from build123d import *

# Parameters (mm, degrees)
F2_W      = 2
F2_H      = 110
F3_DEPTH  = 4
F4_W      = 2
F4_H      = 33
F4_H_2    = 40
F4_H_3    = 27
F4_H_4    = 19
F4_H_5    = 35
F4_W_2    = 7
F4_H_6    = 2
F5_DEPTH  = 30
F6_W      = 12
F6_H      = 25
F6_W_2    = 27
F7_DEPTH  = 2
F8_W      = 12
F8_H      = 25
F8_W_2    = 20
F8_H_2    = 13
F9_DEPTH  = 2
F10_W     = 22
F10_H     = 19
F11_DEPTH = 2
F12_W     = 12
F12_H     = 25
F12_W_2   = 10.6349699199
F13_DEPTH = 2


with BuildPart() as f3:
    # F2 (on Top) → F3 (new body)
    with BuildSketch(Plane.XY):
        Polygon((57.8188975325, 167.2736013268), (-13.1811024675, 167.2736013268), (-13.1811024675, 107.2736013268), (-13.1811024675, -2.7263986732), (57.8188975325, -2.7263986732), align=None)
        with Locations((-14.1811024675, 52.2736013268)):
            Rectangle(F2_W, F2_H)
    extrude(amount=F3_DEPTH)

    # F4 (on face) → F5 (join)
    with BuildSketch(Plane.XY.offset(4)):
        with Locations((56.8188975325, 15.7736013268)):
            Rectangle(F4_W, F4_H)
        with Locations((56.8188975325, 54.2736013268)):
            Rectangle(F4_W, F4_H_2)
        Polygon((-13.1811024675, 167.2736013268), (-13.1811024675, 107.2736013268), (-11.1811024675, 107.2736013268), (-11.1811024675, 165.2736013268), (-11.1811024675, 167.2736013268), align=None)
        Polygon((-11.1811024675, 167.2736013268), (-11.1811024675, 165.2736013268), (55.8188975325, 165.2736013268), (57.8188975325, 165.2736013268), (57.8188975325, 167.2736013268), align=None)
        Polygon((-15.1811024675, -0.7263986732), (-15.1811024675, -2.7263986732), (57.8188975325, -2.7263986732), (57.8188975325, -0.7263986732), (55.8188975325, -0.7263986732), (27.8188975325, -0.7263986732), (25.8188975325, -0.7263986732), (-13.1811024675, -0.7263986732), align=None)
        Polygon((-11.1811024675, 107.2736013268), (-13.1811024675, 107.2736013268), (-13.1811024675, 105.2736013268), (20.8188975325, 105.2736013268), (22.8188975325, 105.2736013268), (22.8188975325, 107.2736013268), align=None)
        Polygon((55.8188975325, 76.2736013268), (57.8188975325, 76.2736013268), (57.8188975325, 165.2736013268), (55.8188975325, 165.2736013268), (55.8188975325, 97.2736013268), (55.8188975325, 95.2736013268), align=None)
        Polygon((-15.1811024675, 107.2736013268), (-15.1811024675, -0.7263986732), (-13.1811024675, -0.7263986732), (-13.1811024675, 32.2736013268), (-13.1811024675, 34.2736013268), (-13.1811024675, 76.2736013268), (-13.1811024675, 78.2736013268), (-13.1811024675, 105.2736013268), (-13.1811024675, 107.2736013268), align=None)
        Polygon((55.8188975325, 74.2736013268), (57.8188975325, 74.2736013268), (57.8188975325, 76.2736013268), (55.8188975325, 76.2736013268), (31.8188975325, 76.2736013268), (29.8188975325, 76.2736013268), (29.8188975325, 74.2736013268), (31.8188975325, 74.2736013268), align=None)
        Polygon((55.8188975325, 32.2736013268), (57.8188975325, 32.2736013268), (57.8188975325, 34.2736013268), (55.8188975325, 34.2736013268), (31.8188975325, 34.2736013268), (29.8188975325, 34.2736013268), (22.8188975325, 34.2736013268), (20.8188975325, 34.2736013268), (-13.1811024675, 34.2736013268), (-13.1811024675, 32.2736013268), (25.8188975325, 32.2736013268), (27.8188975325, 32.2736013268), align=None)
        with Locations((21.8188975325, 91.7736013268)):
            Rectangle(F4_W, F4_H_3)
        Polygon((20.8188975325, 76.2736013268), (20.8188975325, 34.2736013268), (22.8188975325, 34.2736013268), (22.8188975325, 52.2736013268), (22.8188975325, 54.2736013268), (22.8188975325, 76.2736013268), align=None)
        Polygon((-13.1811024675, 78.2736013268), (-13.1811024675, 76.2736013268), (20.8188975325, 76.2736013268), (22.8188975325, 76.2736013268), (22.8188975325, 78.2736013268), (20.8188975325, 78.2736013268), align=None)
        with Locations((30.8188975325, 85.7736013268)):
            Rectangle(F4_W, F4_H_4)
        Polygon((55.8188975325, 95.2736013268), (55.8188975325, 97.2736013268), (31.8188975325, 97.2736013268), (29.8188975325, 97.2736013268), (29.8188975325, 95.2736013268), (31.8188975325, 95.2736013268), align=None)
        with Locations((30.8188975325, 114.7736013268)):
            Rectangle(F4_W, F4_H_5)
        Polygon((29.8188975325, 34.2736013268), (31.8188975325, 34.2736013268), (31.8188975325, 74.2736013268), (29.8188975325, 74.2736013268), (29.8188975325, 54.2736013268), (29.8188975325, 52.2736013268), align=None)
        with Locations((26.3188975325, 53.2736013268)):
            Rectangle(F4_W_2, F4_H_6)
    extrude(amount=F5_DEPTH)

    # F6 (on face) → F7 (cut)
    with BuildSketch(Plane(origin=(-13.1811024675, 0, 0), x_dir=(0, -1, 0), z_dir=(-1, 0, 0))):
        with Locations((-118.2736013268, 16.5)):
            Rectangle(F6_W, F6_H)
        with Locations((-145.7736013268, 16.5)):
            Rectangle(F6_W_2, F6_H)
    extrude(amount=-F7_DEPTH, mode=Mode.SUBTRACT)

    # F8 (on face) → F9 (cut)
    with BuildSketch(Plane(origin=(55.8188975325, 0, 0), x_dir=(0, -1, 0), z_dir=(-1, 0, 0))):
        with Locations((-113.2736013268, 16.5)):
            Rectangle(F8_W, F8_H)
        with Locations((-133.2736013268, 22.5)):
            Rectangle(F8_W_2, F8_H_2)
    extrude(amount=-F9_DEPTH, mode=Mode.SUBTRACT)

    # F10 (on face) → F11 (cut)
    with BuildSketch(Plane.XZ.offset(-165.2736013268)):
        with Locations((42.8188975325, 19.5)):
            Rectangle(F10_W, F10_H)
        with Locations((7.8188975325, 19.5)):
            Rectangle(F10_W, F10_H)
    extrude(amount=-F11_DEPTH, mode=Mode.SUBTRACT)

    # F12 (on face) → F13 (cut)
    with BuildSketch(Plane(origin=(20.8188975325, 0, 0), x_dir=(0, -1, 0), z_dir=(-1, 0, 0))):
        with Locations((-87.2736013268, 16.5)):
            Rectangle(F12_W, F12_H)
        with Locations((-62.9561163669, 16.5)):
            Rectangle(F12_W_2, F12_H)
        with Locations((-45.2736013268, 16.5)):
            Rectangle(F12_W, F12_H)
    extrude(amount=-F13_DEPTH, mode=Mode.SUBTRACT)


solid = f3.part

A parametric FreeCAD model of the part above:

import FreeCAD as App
import Part
import Sketcher

V = App.Vector

doc = App.newDocument("Part")
body = doc.addObject("PartDesign::Body", "Body")

sketch1 = body.newObject("Sketcher::SketchObject", "Sketch")
sketch1.AttachmentSupport = (doc.getObject("XY_Plane"), [""])
sketch1.MapMode = "FlatFace"
sketch1.addGeometry([
    Part.LineSegment(V(57.8, 167.3, 0), V(-13.2, 167.3, 0)),
    Part.LineSegment(V(-13.2, 167.3, 0), V(-13.2, 107.3, 0)),
    Part.LineSegment(V(-13.2, 107.3, 0), V(-15.2, 107.3, 0)),
    Part.LineSegment(V(-15.2, 107.3, 0), V(-15.2, -2.7, 0)),
    Part.LineSegment(V(-15.2, -2.7, 0), V(57.8, -2.7, 0)),
    Part.LineSegment(V(57.8, -2.7, 0), V(57.8, 167.3, 0)),
], False)
sketch1.addConstraint([
    Sketcher.Constraint("Coincident", 0, 2, 1, 1),
    Sketcher.Constraint("Coincident", 1, 2, 2, 1),
    Sketcher.Constraint("Coincident", 2, 2, 3, 1),
    Sketcher.Constraint("Coincident", 3, 2, 4, 1),
    Sketcher.Constraint("Coincident", 4, 2, 5, 1),
    Sketcher.Constraint("Coincident", 5, 2, 0, 1),
    Sketcher.Constraint("Horizontal", 0),
    Sketcher.Constraint("Vertical", 1),
    Sketcher.Constraint("Horizontal", 2),
    Sketcher.Constraint("Vertical", 3),
    Sketcher.Constraint("Horizontal", 4),
    Sketcher.Constraint("Vertical", 5),
    Sketcher.Constraint("DistanceX", 0, 2, 0, 1, 71.0),
    Sketcher.Constraint("DistanceX", 2, 2, 2, 1, 2.0),
    Sketcher.Constraint("DistanceY", 1, 2, 1, 1, 60.0),
    Sketcher.Constraint("DistanceY", 3, 2, 3, 1, 110.0),
    Sketcher.Constraint("DistanceY", -1, 1, 0, 2, 167.273601),
    Sketcher.Constraint("DistanceX", 0, 2, -1, 1, 13.181102),
])
pad1 = body.newObject("PartDesign::Pad", "Pad")
pad1.Profile = sketch1
pad1.Length = 4

sketch2 = body.newObject("Sketcher::SketchObject", "Sketch001")
sketch2.AttachmentSupport = (doc.getObject("XY_Plane"), [""])
sketch2.MapMode = "FlatFace"
sketch2.AttachmentOffset = App.Placement(V(0, 0, 4), App.Rotation())
sketch2.addGeometry([
    Part.LineSegment(V(57.8, 167.3, 0), V(-13.2, 167.3, 0)),
    Part.LineSegment(V(-13.2, 167.3, 0), V(-13.2, 107.3, 0)),
    Part.LineSegment(V(-13.2, 107.3, 0), V(-15.2, 107.3, 0)),
    Part.LineSegment(V(-15.2, 107.3, 0), V(-15.2, -2.7, 0)),
    Part.LineSegment(V(-15.2, -2.7, 0), V(57.8, -2.7, 0)),
    Part.LineSegment(V(57.8, -2.7, 0), V(57.8, 167.3, 0)),
    Part.LineSegment(V(55.8, 32.3, 0), V(55.8, -0.7, 0)),
    Part.LineSegment(V(55.8, -0.7, 0), V(-13.2, -0.7, 0)),
    Part.LineSegment(V(-13.2, -0.7, 0), V(-13.2, 32.3, 0)),
    Part.LineSegment(V(-13.2, 32.3, 0), V(55.8, 32.3, 0)),
    Part.LineSegment(V(-13.2, 34.3, 0), V(-13.2, 76.3, 0)),
    Part.LineSegment(V(-13.2, 76.3, 0), V(20.8, 76.3, 0)),
    Part.LineSegment(V(20.8, 76.3, 0), V(20.8, 34.3, 0)),
    Part.LineSegment(V(20.8, 34.3, 0), V(-13.2, 34.3, 0)),
    Part.LineSegment(V(-13.2, 78.3, 0), V(-13.2, 105.3, 0)),
    Part.LineSegment(V(-13.2, 105.3, 0), V(20.8, 105.3, 0)),
    Part.LineSegment(V(20.8, 105.3, 0), V(20.8, 78.3, 0)),
    Part.LineSegment(V(20.8, 78.3, 0), V(-13.2, 78.3, 0)),
    Part.LineSegment(V(22.8, 107.3, 0), V(-11.2, 107.3, 0)),
    Part.LineSegment(V(-11.2, 107.3, 0), V(-11.2, 165.3, 0)),
    Part.LineSegment(V(-11.2, 165.3, 0), V(55.8, 165.3, 0)),
    Part.LineSegment(V(55.8, 165.3, 0), V(55.8, 97.3, 0)),
    Part.LineSegment(V(55.8, 97.3, 0), V(31.8, 97.3, 0)),
    Part.LineSegment(V(31.8, 97.3, 0), V(31.8, 132.3, 0)),
    Part.LineSegment(V(31.8, 132.3, 0), V(29.8, 132.3, 0)),
    Part.LineSegment(V(29.8, 132.3, 0), V(29.8, 54.3, 0)),
    Part.LineSegment(V(29.8, 54.3, 0), V(22.8, 54.3, 0)),
    Part.LineSegment(V(22.8, 54.3, 0), V(22.8, 107.3, 0)),
    Part.LineSegment(V(29.8, 52.3, 0), V(29.8, 34.3, 0)),
    Part.LineSegment(V(29.8, 34.3, 0), V(22.8, 34.3, 0)),
    Part.LineSegment(V(22.8, 34.3, 0), V(22.8, 52.3, 0)),
    Part.LineSegment(V(22.8, 52.3, 0), V(29.8, 52.3, 0)),
    Part.LineSegment(V(31.8, 74.3, 0), V(55.8, 74.3, 0)),
    Part.LineSegment(V(55.8, 74.3, 0), V(55.8, 34.3, 0)),
    Part.LineSegment(V(55.8, 34.3, 0), V(31.8, 34.3, 0)),
    Part.LineSegment(V(31.8, 34.3, 0), V(31.8, 74.3, 0)),
    Part.LineSegment(V(55.8, 95.3, 0), V(55.8, 76.3, 0)),
    Part.LineSegment(V(55.8, 76.3, 0), V(31.8, 76.3, 0)),
    Part.LineSegment(V(31.8, 76.3, 0), V(31.8, 95.3, 0)),
    Part.LineSegment(V(31.8, 95.3, 0), V(55.8, 95.3, 0)),
], False)
sketch2.addConstraint([
    Sketcher.Constraint("Coincident", 0, 2, 1, 1),
    Sketcher.Constraint("Coincident", 1, 2, 2, 1),
    Sketcher.Constraint("Coincident", 2, 2, 3, 1),
    Sketcher.Constraint("Coincident", 3, 2, 4, 1),
    Sketcher.Constraint("Coincident", 4, 2, 5, 1),
    Sketcher.Constraint("Coincident", 5, 2, 0, 1),
    Sketcher.Constraint("Coincident", 6, 2, 7, 1),
    Sketcher.Constraint("Coincident", 7, 2, 8, 1),
    Sketcher.Constraint("Coincident", 8, 2, 9, 1),
    Sketcher.Constraint("Coincident", 9, 2, 6, 1),
    Sketcher.Constraint("Coincident", 10, 2, 11, 1),
    Sketcher.Constraint("Coincident", 11, 2, 12, 1),
    Sketcher.Constraint("Coincident", 12, 2, 13, 1),
    Sketcher.Constraint("Coincident", 13, 2, 10, 1),
    Sketcher.Constraint("Coincident", 14, 2, 15, 1),
    Sketcher.Constraint("Coincident", 15, 2, 16, 1),
    Sketcher.Constraint("Coincident", 16, 2, 17, 1),
    Sketcher.Constraint("Coincident", 17, 2, 14, 1),
    Sketcher.Constraint("Coincident", 18, 2, 19, 1),
    Sketcher.Constraint("Coincident", 19, 2, 20, 1),
    Sketcher.Constraint("Coincident", 20, 2, 21, 1),
    Sketcher.Constraint("Coincident", 21, 2, 22, 1),
    Sketcher.Constraint("Coincident", 22, 2, 23, 1),
    Sketcher.Constraint("Coincident", 23, 2, 24, 1),
    Sketcher.Constraint("Coincident", 24, 2, 25, 1),
    Sketcher.Constraint("Coincident", 25, 2, 26, 1),
    Sketcher.Constraint("Coincident", 26, 2, 27, 1),
    Sketcher.Constraint("Coincident", 27, 2, 18, 1),
    Sketcher.Constraint("Coincident", 28, 2, 29, 1),
    Sketcher.Constraint("Coincident", 29, 2, 30, 1),
    Sketcher.Constraint("Coincident", 30, 2, 31, 1),
    Sketcher.Constraint("Coincident", 31, 2, 28, 1),
    Sketcher.Constraint("Coincident", 32, 2, 33, 1),
    Sketcher.Constraint("Coincident", 33, 2, 34, 1),
    Sketcher.Constraint("Coincident", 34, 2, 35, 1),
    Sketcher.Constraint("Coincident", 35, 2, 32, 1),
    Sketcher.Constraint("Coincident", 36, 2, 37, 1),
    Sketcher.Constraint("Coincident", 37, 2, 38, 1),
    Sketcher.Constraint("Coincident", 38, 2, 39, 1),
    Sketcher.Constraint("Coincident", 39, 2, 36, 1),
    Sketcher.Constraint("Horizontal", 0),
    Sketcher.Constraint("Vertical", 1),
    Sketcher.Constraint("Horizontal", 2),
    Sketcher.Constraint("Vertical", 3),
    Sketcher.Constraint("Horizontal", 4),
    Sketcher.Constraint("Vertical", 5),
    Sketcher.Constraint("Vertical", 6),
    Sketcher.Constraint("Horizontal", 7),
    Sketcher.Constraint("Vertical", 8),
    Sketcher.Constraint("Horizontal", 9),
    Sketcher.Constraint("Vertical", 10),
    Sketcher.Constraint("Horizontal", 11),
    Sketcher.Constraint("Vertical", 12),
    Sketcher.Constraint("Horizontal", 13),
    Sketcher.Constraint("Vertical", 14),
    Sketcher.Constraint("Horizontal", 15),
    Sketcher.Constraint("Vertical", 16),
    Sketcher.Constraint("Horizontal", 17),
    Sketcher.Constraint("Horizontal", 18),
    Sketcher.Constraint("Vertical", 19),
    Sketcher.Constraint("Horizontal", 20),
    Sketcher.Constraint("Vertical", 21),
    Sketcher.Constraint("Horizontal", 22),
    Sketcher.Constraint("Vertical", 23),
    Sketcher.Constraint("Horizontal", 24),
    Sketcher.Constraint("Vertical", 25),
    Sketcher.Constraint("Horizontal", 26),
    Sketcher.Constraint("Vertical", 27),
    Sketcher.Constraint("Vertical", 28),
    Sketcher.Constraint("Horizontal", 29),
    Sketcher.Constraint("Vertical", 30),
    Sketcher.Constraint("Horizontal", 31),
    Sketcher.Constraint("Horizontal", 32),
    Sketcher.Constraint("Vertical", 33),
    Sketcher.Constraint("Horizontal", 34),
    Sketcher.Constraint("Vertical", 35),
    Sketcher.Constraint("Vertical", 36),
    Sketcher.Constraint("Horizontal", 37),
    Sketcher.Constraint("Vertical", 38),
    Sketcher.Constraint("Horizontal", 39),
    Sketcher.Constraint("Horizontal", 2, 2, 18, 2),
    Sketcher.Constraint("Horizontal", 13, 2, 28, 2),
    Sketcher.Constraint("Horizontal", 29, 2, 33, 2),
    Sketcher.Constraint("Horizontal", 11, 2, 36, 2),
    Sketcher.Constraint("Vertical", 1, 2, 7, 2),
    Sketcher.Constraint("Vertical", 8, 2, 10, 2),
    Sketcher.Constraint("Vertical", 13, 2, 14, 2),
    Sketcher.Constraint("Vertical", 12, 2, 15, 2),
    Sketcher.Constraint("Vertical", 9, 2, 20, 2),
    Sketcher.Constraint("Vertical", 25, 2, 28, 2),
    Sketcher.Constraint("Vertical", 27, 2, 29, 2),
    Sketcher.Constraint("Vertical", 21, 2, 32, 2),
    Sketcher.Constraint("Vertical", 23, 2, 34, 2),
    Sketcher.Constraint("Vertical", 33, 2, 36, 2),
    Sketcher.Constraint("Vertical", 35, 2, 37, 2),
    Sketcher.Constraint("Equal", 17, 18),
    Sketcher.Constraint("Equal", 2, 24),
    Sketcher.Constraint("DistanceX", 0, 2, 0, 1, 71.0),
    Sketcher.Constraint("DistanceX", 2, 2, 2, 1, 2.0),
    Sketcher.Constraint("DistanceX", 7, 2, 7, 1, 69.0),
    Sketcher.Constraint("DistanceX", 11, 1, 11, 2, 34.0),
    Sketcher.Constraint("DistanceX", 20, 1, 20, 2, 67.0),
    Sketcher.Constraint("DistanceX", 22, 2, 22, 1, 24.0),
    Sketcher.Constraint("DistanceY", 1, 2, 1, 1, 60.0),
    Sketcher.Constraint("DistanceY", 3, 2, 3, 1, 110.0),
    Sketcher.Constraint("DistanceY", 6, 2, 6, 1, 33.0),
    Sketcher.Constraint("DistanceY", 10, 1, 10, 2, 42.0),
    Sketcher.Constraint("DistanceY", 14, 1, 14, 2, 27.0),
    Sketcher.Constraint("DistanceY", 19, 1, 19, 2, 58.0),
    Sketcher.Constraint("DistanceY", 21, 2, 21, 1, 68.0),
    Sketcher.Constraint("DistanceY", 23, 1, 23, 2, 35.0),
    Sketcher.Constraint("DistanceY", 25, 2, 25, 1, 78.0),
    Sketcher.Constraint("DistanceY", 28, 2, 28, 1, 18.0),
    Sketcher.Constraint("DistanceY", 33, 2, 33, 1, 40.0),
    Sketcher.Constraint("DistanceY", 36, 2, 36, 1, 19.0),
    Sketcher.Constraint("DistanceY", 4, 2, 6, 2, 2.0),
    Sketcher.Constraint("DistanceY", 10, 2, 1, 2, 31.0),
    Sketcher.Constraint("DistanceY", 14, 2, 1, 2, 2.0),
    Sketcher.Constraint("DistanceY", -1, 1, 0, 2, 167.273601),
    Sketcher.Constraint("DistanceX", 0, 2, -1, 1, 13.181102),
])
pad2 = body.newObject("PartDesign::Pad", "Pad001")
pad2.Profile = sketch2
pad2.Length = 30

sketch3 = body.newObject("Sketcher::SketchObject", "Sketch002")
sketch3.AttachmentSupport = (doc.getObject("YZ_Plane"), [""])
sketch3.MapMode = "FlatFace"
sketch3.AttachmentOffset = App.Placement(V(0, 0, -13.181102), App.Rotation())
sketch3.addGeometry([
    Part.LineSegment(V(124, 29, 0), V(124, 4, 0)),
    Part.LineSegment(V(124, 4, 0), V(112, 4, 0)),
    Part.LineSegment(V(112, 4, 0), V(112, 29, 0)),
    Part.LineSegment(V(112, 29, 0), V(124, 29, 0)),
    Part.LineSegment(V(159, 29, 0), V(159, 4, 0)),
    Part.LineSegment(V(159, 4, 0), V(132, 4, 0)),
    Part.LineSegment(V(132, 4, 0), V(132, 29, 0)),
    Part.LineSegment(V(132, 29, 0), V(159, 29, 0)),
], False)
sketch3.addConstraint([
    Sketcher.Constraint("Coincident", 0, 2, 1, 1),
    Sketcher.Constraint("Coincident", 1, 2, 2, 1),
    Sketcher.Constraint("Coincident", 2, 2, 3, 1),
    Sketcher.Constraint("Coincident", 3, 2, 0, 1),
    Sketcher.Constraint("Coincident", 4, 2, 5, 1),
    Sketcher.Constraint("Coincident", 5, 2, 6, 1),
    Sketcher.Constraint("Coincident", 6, 2, 7, 1),
    Sketcher.Constraint("Coincident", 7, 2, 4, 1),
    Sketcher.Constraint("Vertical", 0),
    Sketcher.Constraint("Horizontal", 1),
    Sketcher.Constraint("Vertical", 2),
    Sketcher.Constraint("Horizontal", 3),
    Sketcher.Constraint("Vertical", 4),
    Sketcher.Constraint("Horizontal", 5),
    Sketcher.Constraint("Vertical", 6),
    Sketcher.Constraint("Horizontal", 7),
    Sketcher.Constraint("Horizontal", 1, 2, 4, 2),
    Sketcher.Constraint("Horizontal", 3, 2, 6, 2),
    Sketcher.Constraint("DistanceX", 1, 2, 1, 1, 12.0),
    Sketcher.Constraint("DistanceX", 5, 2, 5, 1, 27.0),
    Sketcher.Constraint("DistanceY", 0, 2, 0, 1, 25.0),
    Sketcher.Constraint("DistanceY", -1, 1, 0, 2, 4.0),
    Sketcher.Constraint("DistanceX", 0, 2, 4, 2, 35.0),
    Sketcher.Constraint("DistanceX", -1, 1, 0, 2, 124.273601),
])
pocket1 = body.newObject("PartDesign::Pocket", "Pocket")
pocket1.Profile = sketch3
pocket1.Length = 2
pocket1.Reversed = True

sketch4 = body.newObject("Sketcher::SketchObject", "Sketch003")
sketch4.AttachmentSupport = (doc.getObject("YZ_Plane"), [""])
sketch4.MapMode = "FlatFace"
sketch4.AttachmentOffset = App.Placement(V(0, 0, 55.818898), App.Rotation())
sketch4.addGeometry([
    Part.LineSegment(V(119, 29, 0), V(119, 4, 0)),
    Part.LineSegment(V(119, 4, 0), V(107, 4, 0)),
    Part.LineSegment(V(107, 4, 0), V(107, 29, 0)),
    Part.LineSegment(V(107, 29, 0), V(119, 29, 0)),
    Part.LineSegment(V(143, 29, 0), V(143, 16, 0)),
    Part.LineSegment(V(143, 16, 0), V(123, 16, 0)),
    Part.LineSegment(V(123, 16, 0), V(123, 29, 0)),
    Part.LineSegment(V(123, 29, 0), V(143, 29, 0)),
], False)
sketch4.addConstraint([
    Sketcher.Constraint("Coincident", 0, 2, 1, 1),
    Sketcher.Constraint("Coincident", 1, 2, 2, 1),
    Sketcher.Constraint("Coincident", 2, 2, 3, 1),
    Sketcher.Constraint("Coincident", 3, 2, 0, 1),
    Sketcher.Constraint("Coincident", 4, 2, 5, 1),
    Sketcher.Constraint("Coincident", 5, 2, 6, 1),
    Sketcher.Constraint("Coincident", 6, 2, 7, 1),
    Sketcher.Constraint("Coincident", 7, 2, 4, 1),
    Sketcher.Constraint("Vertical", 0),
    Sketcher.Constraint("Horizontal", 1),
    Sketcher.Constraint("Vertical", 2),
    Sketcher.Constraint("Horizontal", 3),
    Sketcher.Constraint("Vertical", 4),
    Sketcher.Constraint("Horizontal", 5),
    Sketcher.Constraint("Vertical", 6),
    Sketcher.Constraint("Horizontal", 7),
    Sketcher.Constraint("Horizontal", 3, 2, 6, 2),
    Sketcher.Constraint("DistanceX", 1, 2, 1, 1, 12.0),
    Sketcher.Constraint("DistanceX", 5, 2, 5, 1, 20.0),
    Sketcher.Constraint("DistanceY", 0, 2, 0, 1, 25.0),
    Sketcher.Constraint("DistanceY", 4, 2, 4, 1, 13.0),
    Sketcher.Constraint("DistanceY", -1, 1, 0, 2, 4.0),
    Sketcher.Constraint("DistanceX", 0, 2, 4, 2, 24.0),
    Sketcher.Constraint("DistanceX", -1, 1, 0, 2, 119.273601),
])
pocket2 = body.newObject("PartDesign::Pocket", "Pocket001")
pocket2.Profile = sketch4
pocket2.Length = 2
pocket2.Reversed = True

sketch5 = body.newObject("Sketcher::SketchObject", "Sketch004")
sketch5.AttachmentSupport = (doc.getObject("XZ_Plane"), [""])
sketch5.MapMode = "FlatFace"
sketch5.AttachmentOffset = App.Placement(V(0, 0, -165.273601), App.Rotation())
sketch5.addGeometry([
    Part.LineSegment(V(32, 29, 0), V(32, 10, 0)),
    Part.LineSegment(V(32, 10, 0), V(54, 10, 0)),
    Part.LineSegment(V(54, 10, 0), V(54, 29, 0)),
    Part.LineSegment(V(54, 29, 0), V(32, 29, 0)),
    Part.LineSegment(V(-3, 29, 0), V(-3, 10, 0)),
    Part.LineSegment(V(-3, 10, 0), V(19, 10, 0)),
    Part.LineSegment(V(19, 10, 0), V(19, 29, 0)),
    Part.LineSegment(V(19, 29, 0), V(-3, 29, 0)),
], False)
sketch5.addConstraint([
    Sketcher.Constraint("Coincident", 0, 2, 1, 1),
    Sketcher.Constraint("Coincident", 1, 2, 2, 1),
    Sketcher.Constraint("Coincident", 2, 2, 3, 1),
    Sketcher.Constraint("Coincident", 3, 2, 0, 1),
    Sketcher.Constraint("Coincident", 4, 2, 5, 1),
    Sketcher.Constraint("Coincident", 5, 2, 6, 1),
    Sketcher.Constraint("Coincident", 6, 2, 7, 1),
    Sketcher.Constraint("Coincident", 7, 2, 4, 1),
    Sketcher.Constraint("Vertical", 0),
    Sketcher.Constraint("Horizontal", 1),
    Sketcher.Constraint("Vertical", 2),
    Sketcher.Constraint("Horizontal", 3),
    Sketcher.Constraint("Vertical", 4),
    Sketcher.Constraint("Horizontal", 5),
    Sketcher.Constraint("Vertical", 6),
    Sketcher.Constraint("Horizontal", 7),
    Sketcher.Constraint("Horizontal", 1, 2, 4, 2),
    Sketcher.Constraint("Horizontal", 3, 2, 6, 2),
    Sketcher.Constraint("Equal", 3, 5),
    Sketcher.Constraint("DistanceX", 1, 1, 1, 2, 22.0),
    Sketcher.Constraint("DistanceY", 0, 2, 0, 1, 19.0),
    Sketcher.Constraint("DistanceY", -1, 1, 0, 2, 10.0),
    Sketcher.Constraint("DistanceX", 4, 2, 0, 2, 35.0),
    Sketcher.Constraint("DistanceX", -1, 1, 0, 2, 31.818898),
])
pocket3 = body.newObject("PartDesign::Pocket", "Pocket002")
pocket3.Profile = sketch5
pocket3.Length = 2

sketch6 = body.newObject("Sketcher::SketchObject", "Sketch005")
sketch6.AttachmentSupport = (doc.getObject("YZ_Plane"), [""])
sketch6.MapMode = "FlatFace"
sketch6.AttachmentOffset = App.Placement(V(0, 0, 20.818898), App.Rotation())
sketch6.addGeometry([
    Part.LineSegment(V(93, 29, 0), V(93, 4, 0)),
    Part.LineSegment(V(93, 4, 0), V(81, 4, 0)),
    Part.LineSegment(V(81, 4, 0), V(81, 29, 0)),
    Part.LineSegment(V(81, 29, 0), V(93, 29, 0)),
    Part.LineSegment(V(68, 29, 0), V(68, 4, 0)),
    Part.LineSegment(V(68, 4, 0), V(58, 4, 0)),
    Part.LineSegment(V(58, 4, 0), V(58, 29, 0)),
    Part.LineSegment(V(58, 29, 0), V(68, 29, 0)),
    Part.LineSegment(V(51, 29, 0), V(51, 4, 0)),
    Part.LineSegment(V(51, 4, 0), V(39, 4, 0)),
    Part.LineSegment(V(39, 4, 0), V(39, 29, 0)),
    Part.LineSegment(V(39, 29, 0), V(51, 29, 0)),
], False)
sketch6.addConstraint([
    Sketcher.Constraint("Coincident", 0, 2, 1, 1),
    Sketcher.Constraint("Coincident", 1, 2, 2, 1),
    Sketcher.Constraint("Coincident", 2, 2, 3, 1),
    Sketcher.Constraint("Coincident", 3, 2, 0, 1),
    Sketcher.Constraint("Coincident", 4, 2, 5, 1),
    Sketcher.Constraint("Coincident", 5, 2, 6, 1),
    Sketcher.Constraint("Coincident", 6, 2, 7, 1),
    Sketcher.Constraint("Coincident", 7, 2, 4, 1),
    Sketcher.Constraint("Coincident", 8, 2, 9, 1),
    Sketcher.Constraint("Coincident", 9, 2, 10, 1),
    Sketcher.Constraint("Coincident", 10, 2, 11, 1),
    Sketcher.Constraint("Coincident", 11, 2, 8, 1),
    Sketcher.Constraint("Vertical", 0),
    Sketcher.Constraint("Horizontal", 1),
    Sketcher.Constraint("Vertical", 2),
    Sketcher.Constraint("Horizontal", 3),
    Sketcher.Constraint("Vertical", 4),
    Sketcher.Constraint("Horizontal", 5),
    Sketcher.Constraint("Vertical", 6),
    Sketcher.Constraint("Horizontal", 7),
    Sketcher.Constraint("Vertical", 8),
    Sketcher.Constraint("Horizontal", 9),
    Sketcher.Constraint("Vertical", 10),
    Sketcher.Constraint("Horizontal", 11),
    Sketcher.Constraint("Horizontal", 1, 2, 4, 2),
    Sketcher.Constraint("Horizontal", 3, 2, 6, 2),
    Sketcher.Constraint("Horizontal", 5, 2, 8, 2),
    Sketcher.Constraint("Horizontal", 7, 2, 10, 2),
    Sketcher.Constraint("Equal", 3, 9),
    Sketcher.Constraint("DistanceX", 1, 2, 1, 1, 12.0),
    Sketcher.Constraint("DistanceY", 0, 2, 0, 1, 25.0),
    Sketcher.Constraint("DistanceY", -1, 1, 0, 2, 4.0),
    Sketcher.Constraint("DistanceX", 4, 2, 1, 2, 13.0),
    Sketcher.Constraint("DistanceX", 8, 2, 4, 2, 17.0),
    Sketcher.Constraint("DistanceX", 5, 2, 5, 1, 10.63497),
    Sketcher.Constraint("DistanceX", -1, 1, 0, 2, 93.273601),
])
pocket4 = body.newObject("PartDesign::Pocket", "Pocket003")
pocket4.Profile = sketch6
pocket4.Length = 2
pocket4.Reversed = True

doc.recompute()
